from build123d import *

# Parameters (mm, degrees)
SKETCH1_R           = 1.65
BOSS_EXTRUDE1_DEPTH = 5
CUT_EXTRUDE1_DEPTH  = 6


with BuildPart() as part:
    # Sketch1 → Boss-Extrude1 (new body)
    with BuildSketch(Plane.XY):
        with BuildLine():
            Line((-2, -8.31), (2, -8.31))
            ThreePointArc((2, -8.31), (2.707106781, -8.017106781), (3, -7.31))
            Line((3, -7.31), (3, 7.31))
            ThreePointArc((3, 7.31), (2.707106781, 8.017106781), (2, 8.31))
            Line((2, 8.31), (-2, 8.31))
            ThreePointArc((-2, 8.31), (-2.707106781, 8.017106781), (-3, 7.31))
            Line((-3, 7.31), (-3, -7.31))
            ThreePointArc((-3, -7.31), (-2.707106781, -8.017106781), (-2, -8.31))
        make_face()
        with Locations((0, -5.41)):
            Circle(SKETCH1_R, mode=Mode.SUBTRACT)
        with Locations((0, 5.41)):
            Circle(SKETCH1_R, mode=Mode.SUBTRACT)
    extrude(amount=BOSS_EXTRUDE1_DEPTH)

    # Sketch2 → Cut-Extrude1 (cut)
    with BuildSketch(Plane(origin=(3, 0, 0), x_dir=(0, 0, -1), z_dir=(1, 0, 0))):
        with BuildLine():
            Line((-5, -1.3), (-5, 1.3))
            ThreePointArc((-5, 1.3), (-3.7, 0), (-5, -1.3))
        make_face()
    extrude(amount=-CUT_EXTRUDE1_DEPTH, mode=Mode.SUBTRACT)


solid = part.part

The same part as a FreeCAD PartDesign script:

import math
import FreeCAD as App
import Part
import Sketcher

doc = App.newDocument("Part")
body = doc.addObject("PartDesign::Body", "Body")

sketch1 = body.newObject("Sketcher::SketchObject", "Sketch")
sketch1.AttachmentSupport = (doc.getObject("XY_Plane"), [""])
sketch1.MapMode = "FlatFace"
sketch1.addGeometry([
    Part.LineSegment(App.Vector(-2, -8.3, 0), App.Vector(2, -8.3, 0)),
    Part.ArcOfCircle(Part.Circle(App.Vector(2, -7.3, 0), App.Vector(0, 0, 1), 1), math.radians(-90), math.radians(0)),
    Part.LineSegment(App.Vector(3, -7.3, 0), App.Vector(3, 7.3, 0)),
    Part.ArcOfCircle(Part.Circle(App.Vector(2, 7.3, 0), App.Vector(0, 0, 1), 1), math.radians(0), math.radians(90)),
    Part.LineSegment(App.Vector(2, 8.3, 0), App.Vector(-2, 8.3, 0)),
    Part.ArcOfCircle(Part.Circle(App.Vector(-2, 7.3, 0), App.Vector(0, 0, 1), 1), math.radians(90), math.radians(180)),
    Part.LineSegment(App.Vector(-3, 7.3, 0), App.Vector(-3, -7.3, 0)),
    Part.ArcOfCircle(Part.Circle(App.Vector(-2, -7.3, 0), App.Vector(0, 0, 1), 1), math.radians(-180), math.radians(-90)),
    Part.Circle(App.Vector(0, -5.4, 0), App.Vector(0, 0, 1), 1.6),
    Part.Circle(App.Vector(0, 5.4, 0), App.Vector(0, 0, 1), 1.6),
], False)
sketch1.addConstraint([
    Sketcher.Constraint("Tangent", 0, 2, 1, 1),
    Sketcher.Constraint("Tangent", 1, 2, 2, 1),
    Sketcher.Constraint("Tangent", 2, 2, 3, 1),
    Sketcher.Constraint("Tangent", 3, 2, 4, 1),
    Sketcher.Constraint("Tangent", 4, 2, 5, 1),
    Sketcher.Constraint("Tangent", 5, 2, 6, 1),
    Sketcher.Constraint("Tangent", 6, 2, 7, 1),
    Sketcher.Constraint("Tangent", 7, 2, 0, 1),
    Sketcher.Constraint("Horizontal", 0),
    Sketcher.Constraint("Vertical", 2),
    Sketcher.Constraint("Horizontal", 4),
    Sketcher.Constraint("Vertical", 6),
    Sketcher.Constraint("Equal", 1, 3),
    Sketcher.Constraint("Equal", 3, 5),
    Sketcher.Constraint("Equal", 5, 7),
    Sketcher.Constraint("Equal", 8, 9),
    Sketcher.Constraint("Symmetric", 1, 3, 5, 3, -1, 1),
    Sketcher.Constraint("Symmetric", 8, 3, 9, 3, -1, 1),
    Sketcher.Constraint("PointOnObject", 8, 3, -2),
    Sketcher.Constraint("Radius", 1, 1.0),
    Sketcher.Constraint("Diameter", 8, 3.3),
    Sketcher.Constraint("DistanceX", 0, 1, 0, 2, 4.0),
    Sketcher.Constraint("DistanceY", 2, 1, 2, 2, 14.62),
    Sketcher.Constraint("DistanceY", 1, 3, 8, 3, 1.9),
])
pad1 = body.newObject("PartDesign::Pad", "Pad")
pad1.Profile = sketch1
pad1.Length = 5

sketch2 = body.newObject("Sketcher::SketchObject", "Sketch001")
sketch2.AttachmentSupport = (doc.getObject("YZ_Plane"), [""])
sketch2.MapMode = "FlatFace"
sketch2.AttachmentOffset = App.Placement(App.Vector(0, 0, 3), App.Rotation())
sketch2.addGeometry([
    Part.LineSegment(App.Vector(1.3, 5, 0), App.Vector(-1.3, 5, 0)),
    Part.ArcOfCircle(Part.Circle(App.Vector(0, 5, 0), App.Vector(0, 0, 1), 1.3), math.radians(180), math.radians(360)),
], False)
sketch2.addConstraint([
    Sketcher.Constraint("Coincident", 0, 1, 1, 2),
    Sketcher.Constraint("Coincident", 1, 1, 0, 2),
    Sketcher.Constraint("Horizontal", 0),
    Sketcher.Constraint("PointOnObject", 1, 3, -2),
    Sketcher.Constraint("Horizontal", 1, 3, 0, 1),
    Sketcher.Constraint("Radius", 1, 1.3),
    Sketcher.Constraint("DistanceY", -1, 1, 1, 3, 5.0),
])
pocket1 = body.newObject("PartDesign::Pocket", "Pocket")
pocket1.Profile = sketch2
pocket1.Length = 6

doc.recompute()
